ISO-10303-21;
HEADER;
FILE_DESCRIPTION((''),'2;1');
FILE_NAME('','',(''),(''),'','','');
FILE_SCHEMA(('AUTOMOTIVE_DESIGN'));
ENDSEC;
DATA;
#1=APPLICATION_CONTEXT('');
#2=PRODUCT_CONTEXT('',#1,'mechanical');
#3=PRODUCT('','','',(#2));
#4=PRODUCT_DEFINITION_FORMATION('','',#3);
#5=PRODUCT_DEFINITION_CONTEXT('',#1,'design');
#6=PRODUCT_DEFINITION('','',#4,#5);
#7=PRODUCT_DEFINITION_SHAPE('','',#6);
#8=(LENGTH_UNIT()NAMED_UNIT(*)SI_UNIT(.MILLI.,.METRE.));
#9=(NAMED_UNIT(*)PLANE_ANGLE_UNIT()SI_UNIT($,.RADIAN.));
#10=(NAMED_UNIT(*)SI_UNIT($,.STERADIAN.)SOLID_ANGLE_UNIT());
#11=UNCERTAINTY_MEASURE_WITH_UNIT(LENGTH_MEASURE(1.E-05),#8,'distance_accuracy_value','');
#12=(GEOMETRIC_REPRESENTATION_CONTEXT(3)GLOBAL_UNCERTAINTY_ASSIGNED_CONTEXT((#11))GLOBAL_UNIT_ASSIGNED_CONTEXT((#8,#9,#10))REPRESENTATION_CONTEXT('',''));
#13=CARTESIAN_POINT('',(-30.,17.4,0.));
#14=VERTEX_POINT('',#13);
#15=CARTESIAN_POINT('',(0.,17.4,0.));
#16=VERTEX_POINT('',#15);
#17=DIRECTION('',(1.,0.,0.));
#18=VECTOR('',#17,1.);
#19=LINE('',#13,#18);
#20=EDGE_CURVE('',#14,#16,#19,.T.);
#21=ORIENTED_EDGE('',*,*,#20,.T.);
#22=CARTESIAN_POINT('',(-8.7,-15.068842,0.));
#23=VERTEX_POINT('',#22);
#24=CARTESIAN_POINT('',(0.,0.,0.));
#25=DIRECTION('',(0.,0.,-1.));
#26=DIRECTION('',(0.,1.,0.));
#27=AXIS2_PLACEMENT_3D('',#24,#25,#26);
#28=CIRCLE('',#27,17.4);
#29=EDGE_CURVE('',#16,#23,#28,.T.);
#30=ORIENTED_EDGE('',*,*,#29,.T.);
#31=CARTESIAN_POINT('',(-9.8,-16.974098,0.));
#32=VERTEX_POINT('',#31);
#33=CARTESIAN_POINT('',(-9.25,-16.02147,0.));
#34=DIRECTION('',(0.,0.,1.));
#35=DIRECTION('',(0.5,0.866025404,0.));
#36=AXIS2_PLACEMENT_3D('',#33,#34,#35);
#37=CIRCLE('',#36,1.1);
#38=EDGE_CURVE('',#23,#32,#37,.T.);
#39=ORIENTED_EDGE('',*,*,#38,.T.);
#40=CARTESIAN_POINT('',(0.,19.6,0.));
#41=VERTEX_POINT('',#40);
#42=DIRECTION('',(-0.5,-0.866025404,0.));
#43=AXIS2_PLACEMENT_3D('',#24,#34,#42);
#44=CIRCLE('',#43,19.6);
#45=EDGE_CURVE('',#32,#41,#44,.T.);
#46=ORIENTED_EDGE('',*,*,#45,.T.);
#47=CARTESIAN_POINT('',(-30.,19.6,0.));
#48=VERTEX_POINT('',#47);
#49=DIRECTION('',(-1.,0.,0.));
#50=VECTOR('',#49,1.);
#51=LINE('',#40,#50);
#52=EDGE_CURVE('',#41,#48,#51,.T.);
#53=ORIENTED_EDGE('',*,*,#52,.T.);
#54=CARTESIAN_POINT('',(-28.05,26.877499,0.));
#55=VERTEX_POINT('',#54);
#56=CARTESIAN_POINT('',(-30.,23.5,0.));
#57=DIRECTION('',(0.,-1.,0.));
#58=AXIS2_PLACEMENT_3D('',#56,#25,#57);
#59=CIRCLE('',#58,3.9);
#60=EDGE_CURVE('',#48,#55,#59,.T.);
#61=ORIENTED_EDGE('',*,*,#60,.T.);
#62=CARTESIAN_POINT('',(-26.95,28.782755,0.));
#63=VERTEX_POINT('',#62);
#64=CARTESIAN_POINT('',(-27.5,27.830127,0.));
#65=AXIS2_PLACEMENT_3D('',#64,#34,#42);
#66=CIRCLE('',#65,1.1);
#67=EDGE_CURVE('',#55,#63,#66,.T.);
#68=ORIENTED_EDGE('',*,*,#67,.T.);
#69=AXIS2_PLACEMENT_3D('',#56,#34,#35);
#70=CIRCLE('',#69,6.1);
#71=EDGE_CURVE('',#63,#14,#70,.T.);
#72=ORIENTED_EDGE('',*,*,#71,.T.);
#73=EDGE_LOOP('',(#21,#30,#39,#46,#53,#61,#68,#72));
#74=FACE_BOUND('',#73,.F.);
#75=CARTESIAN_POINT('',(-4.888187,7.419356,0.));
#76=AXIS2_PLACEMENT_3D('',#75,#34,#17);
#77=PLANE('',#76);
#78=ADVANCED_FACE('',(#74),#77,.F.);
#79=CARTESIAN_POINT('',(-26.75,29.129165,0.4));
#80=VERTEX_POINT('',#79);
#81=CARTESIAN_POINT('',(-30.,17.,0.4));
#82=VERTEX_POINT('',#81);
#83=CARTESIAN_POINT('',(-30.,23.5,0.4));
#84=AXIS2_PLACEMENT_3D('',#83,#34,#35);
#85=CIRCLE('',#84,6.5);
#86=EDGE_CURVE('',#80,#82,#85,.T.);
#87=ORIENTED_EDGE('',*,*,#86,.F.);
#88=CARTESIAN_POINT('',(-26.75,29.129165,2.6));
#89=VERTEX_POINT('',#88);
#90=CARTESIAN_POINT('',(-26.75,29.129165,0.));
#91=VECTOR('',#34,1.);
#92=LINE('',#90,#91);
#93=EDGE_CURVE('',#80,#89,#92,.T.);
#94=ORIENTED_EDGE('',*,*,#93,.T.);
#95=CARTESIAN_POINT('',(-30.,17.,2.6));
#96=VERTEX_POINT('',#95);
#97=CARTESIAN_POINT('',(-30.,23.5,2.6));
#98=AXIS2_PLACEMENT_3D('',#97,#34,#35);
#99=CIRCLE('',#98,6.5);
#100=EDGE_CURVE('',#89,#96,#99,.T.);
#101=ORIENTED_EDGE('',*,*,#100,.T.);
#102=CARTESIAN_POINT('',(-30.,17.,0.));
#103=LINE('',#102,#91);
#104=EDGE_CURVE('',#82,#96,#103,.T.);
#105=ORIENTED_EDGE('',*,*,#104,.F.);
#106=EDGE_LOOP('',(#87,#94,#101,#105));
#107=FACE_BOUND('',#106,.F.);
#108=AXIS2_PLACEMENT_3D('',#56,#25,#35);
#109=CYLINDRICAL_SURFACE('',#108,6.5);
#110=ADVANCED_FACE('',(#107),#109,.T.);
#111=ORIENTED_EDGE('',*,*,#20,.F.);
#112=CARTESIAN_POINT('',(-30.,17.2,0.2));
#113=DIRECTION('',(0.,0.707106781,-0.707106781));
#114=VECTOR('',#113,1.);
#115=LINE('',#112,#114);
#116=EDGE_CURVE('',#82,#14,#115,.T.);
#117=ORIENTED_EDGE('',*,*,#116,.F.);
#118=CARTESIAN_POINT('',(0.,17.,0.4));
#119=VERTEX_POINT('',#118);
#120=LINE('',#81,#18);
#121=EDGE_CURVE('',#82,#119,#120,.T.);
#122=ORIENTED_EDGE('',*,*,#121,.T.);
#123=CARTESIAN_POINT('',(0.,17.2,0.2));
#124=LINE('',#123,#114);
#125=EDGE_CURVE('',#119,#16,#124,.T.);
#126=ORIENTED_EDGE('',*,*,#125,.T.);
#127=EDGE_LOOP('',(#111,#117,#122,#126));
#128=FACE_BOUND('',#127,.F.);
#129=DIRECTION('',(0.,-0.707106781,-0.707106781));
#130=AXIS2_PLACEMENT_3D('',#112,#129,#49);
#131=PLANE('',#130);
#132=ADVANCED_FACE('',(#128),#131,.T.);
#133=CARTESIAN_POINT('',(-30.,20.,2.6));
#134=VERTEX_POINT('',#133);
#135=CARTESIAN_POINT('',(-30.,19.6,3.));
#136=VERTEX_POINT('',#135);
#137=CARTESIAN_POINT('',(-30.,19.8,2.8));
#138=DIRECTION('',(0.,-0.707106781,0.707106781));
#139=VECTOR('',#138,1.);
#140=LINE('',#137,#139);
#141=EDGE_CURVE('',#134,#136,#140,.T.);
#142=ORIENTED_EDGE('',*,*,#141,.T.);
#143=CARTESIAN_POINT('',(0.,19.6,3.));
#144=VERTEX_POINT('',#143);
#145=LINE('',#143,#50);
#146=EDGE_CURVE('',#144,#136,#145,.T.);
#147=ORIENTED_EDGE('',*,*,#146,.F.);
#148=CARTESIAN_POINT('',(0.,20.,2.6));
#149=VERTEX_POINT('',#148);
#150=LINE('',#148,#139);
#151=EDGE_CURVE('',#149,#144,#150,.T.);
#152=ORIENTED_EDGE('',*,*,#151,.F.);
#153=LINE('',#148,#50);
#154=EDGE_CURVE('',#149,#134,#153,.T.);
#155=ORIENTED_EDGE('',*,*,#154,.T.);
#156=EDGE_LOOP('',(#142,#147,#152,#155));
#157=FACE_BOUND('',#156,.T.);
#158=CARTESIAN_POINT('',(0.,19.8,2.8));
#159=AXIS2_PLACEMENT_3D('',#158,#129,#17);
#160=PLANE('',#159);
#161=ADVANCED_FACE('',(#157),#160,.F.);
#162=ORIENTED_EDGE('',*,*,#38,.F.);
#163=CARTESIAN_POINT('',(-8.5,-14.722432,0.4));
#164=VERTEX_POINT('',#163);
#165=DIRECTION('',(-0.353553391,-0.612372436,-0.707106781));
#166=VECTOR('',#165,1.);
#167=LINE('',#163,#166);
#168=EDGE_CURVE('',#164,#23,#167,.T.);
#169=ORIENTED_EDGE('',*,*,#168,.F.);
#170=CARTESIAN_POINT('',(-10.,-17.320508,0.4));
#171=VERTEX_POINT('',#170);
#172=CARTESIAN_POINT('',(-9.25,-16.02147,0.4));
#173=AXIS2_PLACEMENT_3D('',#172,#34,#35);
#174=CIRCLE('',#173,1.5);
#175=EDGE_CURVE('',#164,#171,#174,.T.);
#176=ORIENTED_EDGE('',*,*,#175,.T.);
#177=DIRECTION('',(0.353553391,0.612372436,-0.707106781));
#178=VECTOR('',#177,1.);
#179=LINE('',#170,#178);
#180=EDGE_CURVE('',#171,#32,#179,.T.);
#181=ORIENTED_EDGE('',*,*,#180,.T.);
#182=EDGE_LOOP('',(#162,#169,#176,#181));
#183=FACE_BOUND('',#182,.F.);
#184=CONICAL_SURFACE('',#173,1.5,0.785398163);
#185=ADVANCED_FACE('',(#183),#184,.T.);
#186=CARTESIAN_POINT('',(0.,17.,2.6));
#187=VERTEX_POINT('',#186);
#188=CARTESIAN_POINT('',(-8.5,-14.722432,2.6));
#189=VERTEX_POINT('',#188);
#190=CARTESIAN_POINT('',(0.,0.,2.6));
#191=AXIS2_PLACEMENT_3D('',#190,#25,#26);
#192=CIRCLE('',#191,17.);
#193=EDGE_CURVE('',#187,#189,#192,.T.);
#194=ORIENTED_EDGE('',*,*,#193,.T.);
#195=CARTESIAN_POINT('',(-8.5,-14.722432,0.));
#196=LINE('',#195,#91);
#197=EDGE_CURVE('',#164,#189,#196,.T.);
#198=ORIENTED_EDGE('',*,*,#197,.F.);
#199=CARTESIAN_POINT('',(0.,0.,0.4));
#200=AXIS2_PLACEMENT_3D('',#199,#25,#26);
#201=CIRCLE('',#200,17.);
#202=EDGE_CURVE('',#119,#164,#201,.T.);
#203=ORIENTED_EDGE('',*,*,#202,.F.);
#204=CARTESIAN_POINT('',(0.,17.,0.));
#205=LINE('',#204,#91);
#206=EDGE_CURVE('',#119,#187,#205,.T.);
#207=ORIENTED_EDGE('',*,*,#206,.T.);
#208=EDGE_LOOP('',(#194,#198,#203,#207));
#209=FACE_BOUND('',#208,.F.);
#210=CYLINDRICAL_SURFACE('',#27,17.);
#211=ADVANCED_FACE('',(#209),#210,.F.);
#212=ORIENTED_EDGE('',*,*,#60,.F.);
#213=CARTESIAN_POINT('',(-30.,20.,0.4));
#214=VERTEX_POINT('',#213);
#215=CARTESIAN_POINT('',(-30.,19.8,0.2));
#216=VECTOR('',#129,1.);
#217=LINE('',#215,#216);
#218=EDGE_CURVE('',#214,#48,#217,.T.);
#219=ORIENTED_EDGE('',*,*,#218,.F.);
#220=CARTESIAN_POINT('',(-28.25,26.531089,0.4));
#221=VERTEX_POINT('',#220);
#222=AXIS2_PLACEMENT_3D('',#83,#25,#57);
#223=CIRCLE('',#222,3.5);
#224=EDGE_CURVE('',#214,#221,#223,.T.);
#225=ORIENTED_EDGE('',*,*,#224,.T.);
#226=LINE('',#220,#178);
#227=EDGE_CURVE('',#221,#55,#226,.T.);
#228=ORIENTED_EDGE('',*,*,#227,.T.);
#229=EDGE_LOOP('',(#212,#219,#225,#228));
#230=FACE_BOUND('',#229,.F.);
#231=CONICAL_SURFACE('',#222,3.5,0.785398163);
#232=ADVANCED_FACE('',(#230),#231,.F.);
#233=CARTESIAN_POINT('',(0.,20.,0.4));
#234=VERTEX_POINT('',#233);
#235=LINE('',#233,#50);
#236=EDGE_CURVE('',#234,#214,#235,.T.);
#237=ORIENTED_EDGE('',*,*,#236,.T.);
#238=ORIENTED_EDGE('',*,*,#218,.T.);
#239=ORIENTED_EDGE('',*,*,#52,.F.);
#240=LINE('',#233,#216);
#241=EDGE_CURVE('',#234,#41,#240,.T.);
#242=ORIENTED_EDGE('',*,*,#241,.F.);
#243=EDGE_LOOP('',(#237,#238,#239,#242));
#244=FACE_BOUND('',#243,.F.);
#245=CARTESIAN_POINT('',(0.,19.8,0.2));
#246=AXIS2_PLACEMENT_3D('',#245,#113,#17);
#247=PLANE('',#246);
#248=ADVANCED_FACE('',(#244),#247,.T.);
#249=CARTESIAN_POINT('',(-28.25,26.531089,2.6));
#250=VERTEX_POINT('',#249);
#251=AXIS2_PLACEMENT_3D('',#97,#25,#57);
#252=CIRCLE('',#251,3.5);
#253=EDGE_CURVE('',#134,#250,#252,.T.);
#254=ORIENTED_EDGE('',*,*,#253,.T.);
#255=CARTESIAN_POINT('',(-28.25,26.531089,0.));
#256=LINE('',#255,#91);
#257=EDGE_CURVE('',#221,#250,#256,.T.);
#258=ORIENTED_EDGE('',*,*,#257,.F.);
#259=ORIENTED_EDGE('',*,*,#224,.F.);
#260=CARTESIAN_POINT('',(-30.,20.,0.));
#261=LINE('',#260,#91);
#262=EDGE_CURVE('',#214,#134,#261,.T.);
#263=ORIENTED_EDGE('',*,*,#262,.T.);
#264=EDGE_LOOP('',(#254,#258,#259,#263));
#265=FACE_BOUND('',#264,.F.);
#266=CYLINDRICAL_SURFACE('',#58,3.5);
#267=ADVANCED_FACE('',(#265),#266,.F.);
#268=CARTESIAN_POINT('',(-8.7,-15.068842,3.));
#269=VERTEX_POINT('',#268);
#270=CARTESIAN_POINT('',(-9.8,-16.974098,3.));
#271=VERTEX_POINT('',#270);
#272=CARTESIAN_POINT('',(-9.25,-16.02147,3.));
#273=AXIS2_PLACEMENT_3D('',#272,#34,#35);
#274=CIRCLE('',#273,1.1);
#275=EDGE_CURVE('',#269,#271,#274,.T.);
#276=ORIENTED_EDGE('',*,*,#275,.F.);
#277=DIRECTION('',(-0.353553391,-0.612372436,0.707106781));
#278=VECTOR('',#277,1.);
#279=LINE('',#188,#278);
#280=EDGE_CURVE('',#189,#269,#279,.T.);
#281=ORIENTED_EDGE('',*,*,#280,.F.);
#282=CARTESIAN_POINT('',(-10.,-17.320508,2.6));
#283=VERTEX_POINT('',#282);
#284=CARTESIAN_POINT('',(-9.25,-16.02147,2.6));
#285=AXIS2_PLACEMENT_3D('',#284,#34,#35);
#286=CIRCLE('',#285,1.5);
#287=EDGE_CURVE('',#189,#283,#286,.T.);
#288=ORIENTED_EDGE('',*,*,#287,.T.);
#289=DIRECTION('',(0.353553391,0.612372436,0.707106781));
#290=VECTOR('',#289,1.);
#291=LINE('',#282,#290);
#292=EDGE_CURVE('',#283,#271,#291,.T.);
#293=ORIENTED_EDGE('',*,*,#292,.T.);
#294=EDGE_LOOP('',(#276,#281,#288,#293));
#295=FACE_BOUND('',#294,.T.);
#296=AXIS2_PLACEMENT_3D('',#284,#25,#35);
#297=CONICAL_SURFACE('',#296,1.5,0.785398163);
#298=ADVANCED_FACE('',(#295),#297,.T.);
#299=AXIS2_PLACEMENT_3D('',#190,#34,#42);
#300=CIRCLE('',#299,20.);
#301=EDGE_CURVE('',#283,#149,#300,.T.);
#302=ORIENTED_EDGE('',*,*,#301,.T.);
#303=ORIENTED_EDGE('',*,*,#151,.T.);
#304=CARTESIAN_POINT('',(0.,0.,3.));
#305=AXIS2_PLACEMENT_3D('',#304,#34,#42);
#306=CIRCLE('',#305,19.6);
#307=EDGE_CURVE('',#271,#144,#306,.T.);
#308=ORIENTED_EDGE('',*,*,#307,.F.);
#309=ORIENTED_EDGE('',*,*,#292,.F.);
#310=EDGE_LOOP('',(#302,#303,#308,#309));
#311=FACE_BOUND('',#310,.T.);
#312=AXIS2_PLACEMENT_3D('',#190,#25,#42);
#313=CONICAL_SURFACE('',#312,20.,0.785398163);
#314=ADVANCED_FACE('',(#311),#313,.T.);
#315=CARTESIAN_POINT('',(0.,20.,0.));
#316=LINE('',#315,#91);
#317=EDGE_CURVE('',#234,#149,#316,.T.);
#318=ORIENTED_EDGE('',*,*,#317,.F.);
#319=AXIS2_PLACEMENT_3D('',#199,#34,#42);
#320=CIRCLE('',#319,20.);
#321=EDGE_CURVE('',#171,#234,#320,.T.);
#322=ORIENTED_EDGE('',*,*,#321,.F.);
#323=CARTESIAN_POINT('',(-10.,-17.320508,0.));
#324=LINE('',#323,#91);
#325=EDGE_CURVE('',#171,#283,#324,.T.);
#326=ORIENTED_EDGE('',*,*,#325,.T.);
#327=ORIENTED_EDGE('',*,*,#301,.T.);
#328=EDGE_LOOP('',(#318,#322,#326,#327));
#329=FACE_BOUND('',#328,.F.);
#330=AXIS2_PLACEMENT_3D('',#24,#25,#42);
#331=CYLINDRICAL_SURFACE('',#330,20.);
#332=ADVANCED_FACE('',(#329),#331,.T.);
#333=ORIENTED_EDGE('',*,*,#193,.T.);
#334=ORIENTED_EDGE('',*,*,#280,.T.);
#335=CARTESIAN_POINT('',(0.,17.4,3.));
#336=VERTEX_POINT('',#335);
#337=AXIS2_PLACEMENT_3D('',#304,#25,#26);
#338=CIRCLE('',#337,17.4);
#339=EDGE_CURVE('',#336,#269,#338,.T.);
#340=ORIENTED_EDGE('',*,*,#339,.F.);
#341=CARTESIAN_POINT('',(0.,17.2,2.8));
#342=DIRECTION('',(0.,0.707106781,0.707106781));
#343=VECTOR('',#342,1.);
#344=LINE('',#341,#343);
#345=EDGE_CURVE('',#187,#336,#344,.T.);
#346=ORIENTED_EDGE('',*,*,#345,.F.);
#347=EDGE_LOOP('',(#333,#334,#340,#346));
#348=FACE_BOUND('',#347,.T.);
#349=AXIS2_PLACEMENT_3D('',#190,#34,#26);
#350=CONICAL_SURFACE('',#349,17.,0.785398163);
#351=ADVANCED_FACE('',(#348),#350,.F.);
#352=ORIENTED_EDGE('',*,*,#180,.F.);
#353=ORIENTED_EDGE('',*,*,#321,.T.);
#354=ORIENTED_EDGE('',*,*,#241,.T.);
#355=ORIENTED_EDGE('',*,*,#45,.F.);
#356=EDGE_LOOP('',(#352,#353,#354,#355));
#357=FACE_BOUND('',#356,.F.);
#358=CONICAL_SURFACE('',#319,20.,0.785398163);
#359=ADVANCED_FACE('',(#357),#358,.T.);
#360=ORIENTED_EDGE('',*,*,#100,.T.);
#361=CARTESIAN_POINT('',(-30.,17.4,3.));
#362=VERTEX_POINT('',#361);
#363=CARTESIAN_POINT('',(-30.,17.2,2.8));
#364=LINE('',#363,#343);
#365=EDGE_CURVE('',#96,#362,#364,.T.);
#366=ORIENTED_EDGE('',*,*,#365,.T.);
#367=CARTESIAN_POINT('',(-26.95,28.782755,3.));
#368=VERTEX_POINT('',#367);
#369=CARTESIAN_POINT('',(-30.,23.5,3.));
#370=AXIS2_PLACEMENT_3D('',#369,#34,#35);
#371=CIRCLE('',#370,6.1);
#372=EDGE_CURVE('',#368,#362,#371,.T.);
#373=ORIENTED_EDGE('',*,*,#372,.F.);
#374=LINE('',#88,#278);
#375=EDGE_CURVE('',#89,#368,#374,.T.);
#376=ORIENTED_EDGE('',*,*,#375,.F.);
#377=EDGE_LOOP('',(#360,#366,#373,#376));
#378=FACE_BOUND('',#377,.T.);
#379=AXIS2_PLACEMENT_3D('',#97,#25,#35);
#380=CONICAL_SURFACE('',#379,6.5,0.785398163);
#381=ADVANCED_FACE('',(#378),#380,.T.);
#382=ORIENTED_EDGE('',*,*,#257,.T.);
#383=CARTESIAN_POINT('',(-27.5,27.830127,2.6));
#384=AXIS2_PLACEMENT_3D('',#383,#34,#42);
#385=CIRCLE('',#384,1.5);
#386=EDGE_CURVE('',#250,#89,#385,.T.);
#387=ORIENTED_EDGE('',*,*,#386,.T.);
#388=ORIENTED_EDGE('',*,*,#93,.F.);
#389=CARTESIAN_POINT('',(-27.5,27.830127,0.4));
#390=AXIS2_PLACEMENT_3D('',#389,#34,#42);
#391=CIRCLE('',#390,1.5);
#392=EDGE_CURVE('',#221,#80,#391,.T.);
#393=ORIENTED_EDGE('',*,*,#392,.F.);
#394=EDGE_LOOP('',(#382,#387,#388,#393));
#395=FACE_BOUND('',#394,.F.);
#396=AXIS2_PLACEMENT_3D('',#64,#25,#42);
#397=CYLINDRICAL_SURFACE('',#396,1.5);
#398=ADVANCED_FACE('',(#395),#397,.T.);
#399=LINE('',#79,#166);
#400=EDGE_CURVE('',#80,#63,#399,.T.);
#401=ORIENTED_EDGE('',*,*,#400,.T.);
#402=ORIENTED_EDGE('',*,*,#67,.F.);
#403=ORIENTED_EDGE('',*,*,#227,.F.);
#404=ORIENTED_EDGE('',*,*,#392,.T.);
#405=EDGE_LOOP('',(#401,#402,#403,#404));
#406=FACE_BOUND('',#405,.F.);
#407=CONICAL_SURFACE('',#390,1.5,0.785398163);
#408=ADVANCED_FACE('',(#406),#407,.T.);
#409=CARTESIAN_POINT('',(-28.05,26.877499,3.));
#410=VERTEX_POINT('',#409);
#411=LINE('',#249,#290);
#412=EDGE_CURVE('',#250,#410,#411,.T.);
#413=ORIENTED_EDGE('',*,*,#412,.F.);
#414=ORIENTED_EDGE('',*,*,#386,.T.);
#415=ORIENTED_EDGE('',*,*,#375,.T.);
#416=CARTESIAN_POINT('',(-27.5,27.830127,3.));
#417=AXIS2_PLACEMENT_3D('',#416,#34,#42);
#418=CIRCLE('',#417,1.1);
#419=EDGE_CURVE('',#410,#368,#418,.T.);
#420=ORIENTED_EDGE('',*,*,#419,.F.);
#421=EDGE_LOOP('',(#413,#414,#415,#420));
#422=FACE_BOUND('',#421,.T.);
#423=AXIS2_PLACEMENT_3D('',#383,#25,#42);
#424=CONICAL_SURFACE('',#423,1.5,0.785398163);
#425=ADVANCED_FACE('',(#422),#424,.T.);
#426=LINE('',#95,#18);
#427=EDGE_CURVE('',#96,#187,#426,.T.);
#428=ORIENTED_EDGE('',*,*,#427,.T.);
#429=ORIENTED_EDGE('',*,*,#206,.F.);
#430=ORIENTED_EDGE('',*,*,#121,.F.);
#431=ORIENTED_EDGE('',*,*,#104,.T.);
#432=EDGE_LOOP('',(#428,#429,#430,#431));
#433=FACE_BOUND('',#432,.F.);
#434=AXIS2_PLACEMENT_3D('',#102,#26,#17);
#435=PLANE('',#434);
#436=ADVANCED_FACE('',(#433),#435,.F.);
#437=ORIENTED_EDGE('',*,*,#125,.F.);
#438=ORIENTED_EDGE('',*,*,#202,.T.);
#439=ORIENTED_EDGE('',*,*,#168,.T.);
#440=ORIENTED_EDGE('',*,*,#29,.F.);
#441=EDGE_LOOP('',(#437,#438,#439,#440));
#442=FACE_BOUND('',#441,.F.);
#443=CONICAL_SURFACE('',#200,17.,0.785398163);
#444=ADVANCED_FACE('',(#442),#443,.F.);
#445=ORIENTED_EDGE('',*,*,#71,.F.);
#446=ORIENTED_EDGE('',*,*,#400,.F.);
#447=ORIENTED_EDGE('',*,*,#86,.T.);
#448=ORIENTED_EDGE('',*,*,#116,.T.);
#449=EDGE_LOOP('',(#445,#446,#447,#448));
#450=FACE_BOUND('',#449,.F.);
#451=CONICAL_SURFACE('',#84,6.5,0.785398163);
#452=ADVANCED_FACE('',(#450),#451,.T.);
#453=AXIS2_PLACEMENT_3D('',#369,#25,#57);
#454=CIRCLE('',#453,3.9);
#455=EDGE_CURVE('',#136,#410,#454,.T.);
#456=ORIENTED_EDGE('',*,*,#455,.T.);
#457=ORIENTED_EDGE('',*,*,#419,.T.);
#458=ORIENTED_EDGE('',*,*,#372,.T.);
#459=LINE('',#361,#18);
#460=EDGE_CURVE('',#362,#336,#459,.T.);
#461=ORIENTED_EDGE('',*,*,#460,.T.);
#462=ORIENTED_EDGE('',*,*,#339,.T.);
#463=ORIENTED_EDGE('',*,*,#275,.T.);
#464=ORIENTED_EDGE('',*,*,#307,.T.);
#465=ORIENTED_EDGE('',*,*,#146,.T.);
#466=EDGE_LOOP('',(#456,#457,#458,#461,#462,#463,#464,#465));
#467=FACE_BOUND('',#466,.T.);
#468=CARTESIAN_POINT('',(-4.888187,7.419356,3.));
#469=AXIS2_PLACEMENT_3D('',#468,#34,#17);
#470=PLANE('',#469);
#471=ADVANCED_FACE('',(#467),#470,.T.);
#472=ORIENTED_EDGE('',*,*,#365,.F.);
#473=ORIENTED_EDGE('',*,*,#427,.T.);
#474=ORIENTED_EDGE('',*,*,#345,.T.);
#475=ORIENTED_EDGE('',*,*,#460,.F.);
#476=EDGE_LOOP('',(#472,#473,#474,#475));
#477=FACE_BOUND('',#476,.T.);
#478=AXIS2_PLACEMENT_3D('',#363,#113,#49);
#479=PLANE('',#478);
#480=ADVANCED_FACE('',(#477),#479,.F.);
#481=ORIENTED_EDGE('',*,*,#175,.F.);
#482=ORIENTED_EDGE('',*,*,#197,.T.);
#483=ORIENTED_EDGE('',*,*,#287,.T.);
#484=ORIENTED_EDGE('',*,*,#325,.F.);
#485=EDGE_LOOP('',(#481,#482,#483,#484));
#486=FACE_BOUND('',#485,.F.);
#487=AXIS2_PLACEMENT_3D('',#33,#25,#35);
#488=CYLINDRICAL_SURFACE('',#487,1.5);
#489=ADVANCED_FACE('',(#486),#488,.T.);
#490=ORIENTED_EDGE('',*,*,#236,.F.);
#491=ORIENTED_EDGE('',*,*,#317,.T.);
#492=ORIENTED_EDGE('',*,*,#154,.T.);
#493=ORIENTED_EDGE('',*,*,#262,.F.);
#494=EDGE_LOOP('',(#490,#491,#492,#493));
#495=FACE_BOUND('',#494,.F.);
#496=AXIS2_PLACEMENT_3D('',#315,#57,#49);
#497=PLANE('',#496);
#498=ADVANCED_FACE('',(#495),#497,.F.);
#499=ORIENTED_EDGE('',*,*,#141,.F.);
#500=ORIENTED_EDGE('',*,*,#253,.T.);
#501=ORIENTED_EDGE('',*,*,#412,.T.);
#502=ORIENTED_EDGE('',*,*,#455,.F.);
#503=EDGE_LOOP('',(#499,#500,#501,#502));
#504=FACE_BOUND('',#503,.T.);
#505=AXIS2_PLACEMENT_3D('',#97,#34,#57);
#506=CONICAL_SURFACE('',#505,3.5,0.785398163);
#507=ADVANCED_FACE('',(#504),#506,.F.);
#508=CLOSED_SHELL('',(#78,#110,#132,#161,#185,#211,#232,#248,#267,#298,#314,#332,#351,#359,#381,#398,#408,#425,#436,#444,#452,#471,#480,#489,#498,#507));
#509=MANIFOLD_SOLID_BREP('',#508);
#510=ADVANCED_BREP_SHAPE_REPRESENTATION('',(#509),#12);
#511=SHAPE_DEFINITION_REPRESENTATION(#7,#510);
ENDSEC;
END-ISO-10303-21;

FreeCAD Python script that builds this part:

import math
import FreeCAD as App
import Part
import Sketcher
from FreeCAD import Vector


def edges_at(feature, points):
    """Names of the edges that pass closest to the given points."""
    edges = feature.Shape.Edges
    near = lambda p: min(range(len(edges)), key=lambda i: edges[i].distToShape(Part.Vertex(*p))[0])
    return sorted({f"Edge{near(p) + 1}" for p in points})

doc = App.newDocument("Part")
body = doc.addObject("PartDesign::Body", "Body")

sketch1 = body.newObject("Sketcher::SketchObject", "Sketch")
sketch1.AttachmentSupport = (doc.getObject("XY_Plane"), [""])
sketch1.MapMode = "FlatFace"
sketch1.addGeometry([
    Part.ArcOfCircle(Part.Circle(Vector(0, 0, 0), Vector(0, 0, 1), 17), math.radians(-120), math.radians(90)),
    Part.ArcOfCircle(Part.Circle(Vector(-9.25, -16.02147, 0), Vector(0, 0, 1), 1.5), math.radians(60), math.radians(240)),
    Part.ArcOfCircle(Part.Circle(Vector(0, 0, 0), Vector(0, 0, 1), 20), math.radians(-120), math.radians(90)),
    Part.LineSegment(Vector(0, 20, 0), Vector(-30, 20, 0)),
    Part.ArcOfCircle(Part.Circle(Vector(-30, 23.5, 0), Vector(0, 0, 1), 3.5), math.radians(60), math.radians(270)),
    Part.ArcOfCircle(Part.Circle(Vector(-27.5, 27.830127, 0), Vector(0, 0, 1), 1.5), math.radians(-120), math.radians(60)),
    Part.ArcOfCircle(Part.Circle(Vector(-30, 23.5, 0), Vector(0, 0, 1), 6.5), math.radians(60), math.radians(270)),
    Part.LineSegment(Vector(-30, 17, 0), Vector(0, 17, 0)),
], False)
sketch1.addConstraint([
    Sketcher.Constraint("Tangent", 0, 1, 1, 1),
    Sketcher.Constraint("Tangent", 1, 2, 2, 1),
    Sketcher.Constraint("Tangent", 2, 2, 3, 1),
    Sketcher.Constraint("Tangent", 3, 2, 4, 2),
    Sketcher.Constraint("Tangent", 4, 1, 5, 1),
    Sketcher.Constraint("Tangent", 5, 2, 6, 1),
    Sketcher.Constraint("Tangent", 6, 2, 7, 1),
    Sketcher.Constraint("Tangent", 7, 2, 0, 2),
    Sketcher.Constraint("Horizontal", 3),
    Sketcher.Constraint("Horizontal", 7),
    Sketcher.Constraint("Coincident", 0, 3, -1, 1),
    Sketcher.Constraint("Coincident", 2, 3, -1, 1),
    Sketcher.Constraint("Coincident", 6, 3, 4, 3),
    Sketcher.Constraint("Radius", 0, 17.0),
    Sketcher.Constraint("Radius", 2, 20.0),
    Sketcher.Constraint("Radius", 4, 3.5),
    Sketcher.Constraint("DistanceX", 3, 2, 3, 1, 30.0),
    Sketcher.Constraint("DistanceX", 1, 2, -1, 1, 10.0),
    Sketcher.Constraint("DistanceX", 5, 3, -1, 1, 27.5),
])
pad1 = body.newObject("PartDesign::Pad", "Pad")
pad1.Profile = sketch1
pad1.Length = 3
doc.recompute()

chamfer = body.newObject("PartDesign::Chamfer", "Chamfer")
chamfer.Base = (pad1, edges_at(pad1, [(-15, 17, 3), (-15, 17, 0)]))
chamfer.Size = 0.4

doc.recompute()
